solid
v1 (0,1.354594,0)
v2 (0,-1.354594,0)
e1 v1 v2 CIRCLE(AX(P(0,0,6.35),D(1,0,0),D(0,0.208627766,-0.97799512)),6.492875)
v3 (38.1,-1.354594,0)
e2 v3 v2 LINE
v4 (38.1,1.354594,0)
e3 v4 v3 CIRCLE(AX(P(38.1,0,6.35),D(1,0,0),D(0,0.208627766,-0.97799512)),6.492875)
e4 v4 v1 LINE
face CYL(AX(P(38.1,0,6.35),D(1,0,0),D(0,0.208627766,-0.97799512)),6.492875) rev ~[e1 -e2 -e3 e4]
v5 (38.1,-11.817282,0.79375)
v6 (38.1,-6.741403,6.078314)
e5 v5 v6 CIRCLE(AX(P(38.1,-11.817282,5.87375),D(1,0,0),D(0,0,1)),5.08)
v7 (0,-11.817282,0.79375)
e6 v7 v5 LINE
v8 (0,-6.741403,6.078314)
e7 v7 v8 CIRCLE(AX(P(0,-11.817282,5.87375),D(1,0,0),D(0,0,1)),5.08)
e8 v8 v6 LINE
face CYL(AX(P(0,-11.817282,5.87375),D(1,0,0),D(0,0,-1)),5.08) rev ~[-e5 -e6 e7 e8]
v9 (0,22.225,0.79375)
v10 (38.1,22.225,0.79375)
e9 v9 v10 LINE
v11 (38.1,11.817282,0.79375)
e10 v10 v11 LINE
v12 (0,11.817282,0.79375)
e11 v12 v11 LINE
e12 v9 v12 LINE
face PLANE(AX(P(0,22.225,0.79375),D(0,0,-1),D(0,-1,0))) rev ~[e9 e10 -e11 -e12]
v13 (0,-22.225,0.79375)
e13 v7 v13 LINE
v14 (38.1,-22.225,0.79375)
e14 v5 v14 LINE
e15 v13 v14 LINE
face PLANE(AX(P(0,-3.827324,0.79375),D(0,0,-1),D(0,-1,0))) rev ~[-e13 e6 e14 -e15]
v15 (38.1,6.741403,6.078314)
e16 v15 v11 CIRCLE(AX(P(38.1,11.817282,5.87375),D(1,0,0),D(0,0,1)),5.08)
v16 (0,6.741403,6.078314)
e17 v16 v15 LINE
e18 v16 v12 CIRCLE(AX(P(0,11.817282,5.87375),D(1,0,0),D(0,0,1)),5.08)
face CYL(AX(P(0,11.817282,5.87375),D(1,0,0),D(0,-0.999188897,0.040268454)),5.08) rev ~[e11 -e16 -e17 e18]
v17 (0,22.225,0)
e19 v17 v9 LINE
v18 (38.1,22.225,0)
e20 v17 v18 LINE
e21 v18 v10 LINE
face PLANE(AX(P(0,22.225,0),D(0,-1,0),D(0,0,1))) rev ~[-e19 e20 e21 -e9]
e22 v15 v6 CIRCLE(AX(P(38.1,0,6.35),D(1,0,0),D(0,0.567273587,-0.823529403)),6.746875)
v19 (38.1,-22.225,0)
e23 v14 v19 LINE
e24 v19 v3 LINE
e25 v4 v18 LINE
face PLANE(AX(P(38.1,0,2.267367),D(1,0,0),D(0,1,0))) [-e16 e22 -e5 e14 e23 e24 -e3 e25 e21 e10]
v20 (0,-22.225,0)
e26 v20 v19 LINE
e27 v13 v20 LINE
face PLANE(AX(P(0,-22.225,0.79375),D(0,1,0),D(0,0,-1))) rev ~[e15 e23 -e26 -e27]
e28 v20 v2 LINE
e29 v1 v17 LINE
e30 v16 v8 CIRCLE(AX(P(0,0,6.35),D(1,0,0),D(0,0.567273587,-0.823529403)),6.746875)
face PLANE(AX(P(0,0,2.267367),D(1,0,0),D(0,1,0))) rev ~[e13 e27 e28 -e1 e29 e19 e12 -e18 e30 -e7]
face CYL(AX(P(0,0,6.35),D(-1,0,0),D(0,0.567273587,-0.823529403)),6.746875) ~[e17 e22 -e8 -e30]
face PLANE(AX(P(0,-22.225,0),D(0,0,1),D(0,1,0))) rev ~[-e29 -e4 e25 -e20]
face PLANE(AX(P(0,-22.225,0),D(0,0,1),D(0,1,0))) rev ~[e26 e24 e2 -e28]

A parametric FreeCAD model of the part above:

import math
import FreeCAD as App
import Part
import Sketcher
Q = App.Units.Quantity


def edges_at(feature, points):
    """Names of the edges that pass closest to the given points."""
    edges = feature.Shape.Edges
    near = lambda p: min(range(len(edges)), key=lambda i: edges[i].distToShape(Part.Vertex(*p))[0])
    return sorted({f"Edge{near(p) + 1}" for p in points})

doc = App.newDocument("Part")
params = doc.addObject("Spreadsheet::Sheet", "Params")
for row, (alias, value) in enumerate([
    ("sketch1_radius", "0.265625 in"),
    ("sketch1_width", "1.75 in"),
    ("sketch1_height", "0.03125 in"),
    ("pad1_length", "1.5 in"),
    ("fillet_radius", "0.2 in"),
], start=1):
    params.set(f"A{row}", alias)
    params.set(f"B{row}", "=" + value)
    params.setAlias(f"B{row}", alias)

body = doc.addObject("PartDesign::Body", "Body")

sketch1 = doc.addObject("Sketcher::SketchObject", "Sketch")
body.addObject(sketch1)
sketch1.AttachmentSupport = (doc.YZ_Plane, [""])
sketch1.MapMode = "FlatFace"
sketch1.addGeometry(Part.LineSegment(App.Vector(-22.2, 0.8, 0), App.Vector(-22.2, 0, 0)), False)
sketch1.addGeometry(Part.LineSegment(App.Vector(-22.2, 0, 0), App.Vector(22.2, 0, 0)), False)
sketch1.addGeometry(Part.LineSegment(App.Vector(22.2, 0, 0), App.Vector(22.2, 0.8, 0)), False)
sketch1.addGeometry(Part.LineSegment(App.Vector(22.2, 0.8, 0), App.Vector(3.8, 0.8, 0)), False)
sketch1.addGeometry(Part.ArcOfCircle(Part.Circle(App.Vector(0, 6.3, 0), App.Vector(0, 0, 1), 6.7), math.radians(-55), math.radians(235)), False)
sketch1.addGeometry(Part.LineSegment(App.Vector(-3.8, 0.8, 0), App.Vector(-22.2, 0.8, 0)), False)
sketch1.addConstraint(Sketcher.Constraint("Coincident", 0, 2, 1, 1))
sketch1.addConstraint(Sketcher.Constraint("Coincident", 1, 2, 2, 1))
sketch1.addConstraint(Sketcher.Constraint("Coincident", 2, 2, 3, 1))
sketch1.addConstraint(Sketcher.Constraint("Coincident", 3, 2, 4, 1))
sketch1.addConstraint(Sketcher.Constraint("Coincident", 4, 2, 5, 1))
sketch1.addConstraint(Sketcher.Constraint("Coincident", 5, 2, 0, 1))
sketch1.addConstraint(Sketcher.Constraint("Vertical", 0))
sketch1.addConstraint(Sketcher.Constraint("Horizontal", 1))
sketch1.addConstraint(Sketcher.Constraint("Vertical", 2))
sketch1.addConstraint(Sketcher.Constraint("Horizontal", 3))
sketch1.addConstraint(Sketcher.Constraint("Horizontal", 5))
sketch1.addConstraint(Sketcher.Constraint("Symmetric", 0, 2, 1, 2, -1, 1))
sketch1.addConstraint(Sketcher.Constraint("Symmetric", 3, 2, 4, 2, -2))
sketch1.addConstraint(Sketcher.Constraint("Radius", 4, Q("0.265625 in")))
sketch1.addConstraint(Sketcher.Constraint("DistanceX", 1, 1, 1, 2, Q("1.75 in")))
sketch1.addConstraint(Sketcher.Constraint("DistanceY", 0, 2, 0, 1, Q("0.03125 in")))
sketch1.addConstraint(Sketcher.Constraint("DistanceY", -1, 1, 4, 3, Q("0.25 in")))
sketch1.setExpression("Constraints[13]", "Params.sketch1_radius")
sketch1.setExpression("Constraints[14]", "Params.sketch1_width")
sketch1.setExpression("Constraints[15]", "Params.sketch1_height")
pad1 = doc.addObject("PartDesign::Pad", "Pad")
body.addObject(pad1)
pad1.Profile = sketch1
pad1.setExpression("Length", "Params.pad1_length")

sketch2 = doc.addObject("Sketcher::SketchObject", "Sketch001")
body.addObject(sketch2)
sketch2.AttachmentSupport = (doc.YZ_Plane, [""])
sketch2.MapMode = "FlatFace"
sketch2.AttachmentOffset = App.Placement(App.Vector(0, 0, 1.5 * 25.4), App.Rotation())
sketch2.addGeometry(Part.LineSegment(App.Vector(-1.4, 0, 0), App.Vector(1.4, 0, 0)), False)
sketch2.addGeometry(Part.ArcOfCircle(Part.Circle(App.Vector(0, 6.4, 0), App.Vector(0, 0, 1), 6.5), math.radians(-78), math.radians(258)), False)
sketch2.addConstraint(Sketcher.Constraint("Coincident", 0, 1, 1, 2))
sketch2.addConstraint(Sketcher.Constraint("Coincident", 1, 1, 0, 2))
sketch2.addConstraint(Sketcher.Constraint("Horizontal", 0))
sketch2.addConstraint(Sketcher.Constraint("Symmetric", 0, 1, 1, 1, -1, 1))
sketch2.addConstraint(Sketcher.Constraint("DistanceY", -1, 1, 1, 3, Q("0.25 in")))
sketch2.addConstraint(Sketcher.Constraint("Radius", 1, 6.492875))
pocket1 = doc.addObject("PartDesign::Pocket", "Pocket")
body.addObject(pocket1)
pocket1.Profile = sketch2
pocket1.Type = "ThroughAll"
doc.recompute()

fillet = doc.addObject("PartDesign::Fillet", "Fillet")
body.addObject(fillet)
fillet.Base = (pocket1, edges_at(pocket1, [(19.05, -3.827, 0.794), (19.05, 3.827, 0.794)]))
fillet.setExpression("Radius", "Params.fillet_radius")

sketch3 = doc.addObject("Sketcher::SketchObject", "Sketch002")
body.addObject(sketch3)
sketch3.AttachmentSupport = (doc.YZ_Plane, [""])
sketch3.MapMode = "FlatFace"
sketch3.AttachmentOffset = App.Placement(App.Vector(0, 0, 1.5 * 25.4), App.Rotation())
sketch3.addGeometry(Part.LineSegment(App.Vector(-1.4, 0, 0), App.Vector(1.4, 0, 0)), False)
sketch3.addGeometry(Part.ArcOfCircle(Part.Circle(App.Vector(0, 6.4, 0), App.Vector(0, 0, 1), 6.5), math.radians(-78), math.radians(258)), False)
sketch3.addConstraint(Sketcher.Constraint("Coincident", 0, 1, 1, 2))
sketch3.addConstraint(Sketcher.Constraint("Coincident", 1, 1, 0, 2))
sketch3.addConstraint(Sketcher.Constraint("Horizontal", 0))
sketch3.addConstraint(Sketcher.Constraint("Symmetric", 0, 1, 1, 1, -1, 1))
sketch3.addConstraint(Sketcher.Constraint("DistanceY", -1, 1, 1, 3, Q("0.25 in")))
sketch3.addConstraint(Sketcher.Constraint("Radius", 1, 6.492875))
pocket2 = doc.addObject("PartDesign::Pocket", "Pocket001")
body.addObject(pocket2)
pocket2.Profile = sketch3
pocket2.Type = "ThroughAll"

doc.recompute()
